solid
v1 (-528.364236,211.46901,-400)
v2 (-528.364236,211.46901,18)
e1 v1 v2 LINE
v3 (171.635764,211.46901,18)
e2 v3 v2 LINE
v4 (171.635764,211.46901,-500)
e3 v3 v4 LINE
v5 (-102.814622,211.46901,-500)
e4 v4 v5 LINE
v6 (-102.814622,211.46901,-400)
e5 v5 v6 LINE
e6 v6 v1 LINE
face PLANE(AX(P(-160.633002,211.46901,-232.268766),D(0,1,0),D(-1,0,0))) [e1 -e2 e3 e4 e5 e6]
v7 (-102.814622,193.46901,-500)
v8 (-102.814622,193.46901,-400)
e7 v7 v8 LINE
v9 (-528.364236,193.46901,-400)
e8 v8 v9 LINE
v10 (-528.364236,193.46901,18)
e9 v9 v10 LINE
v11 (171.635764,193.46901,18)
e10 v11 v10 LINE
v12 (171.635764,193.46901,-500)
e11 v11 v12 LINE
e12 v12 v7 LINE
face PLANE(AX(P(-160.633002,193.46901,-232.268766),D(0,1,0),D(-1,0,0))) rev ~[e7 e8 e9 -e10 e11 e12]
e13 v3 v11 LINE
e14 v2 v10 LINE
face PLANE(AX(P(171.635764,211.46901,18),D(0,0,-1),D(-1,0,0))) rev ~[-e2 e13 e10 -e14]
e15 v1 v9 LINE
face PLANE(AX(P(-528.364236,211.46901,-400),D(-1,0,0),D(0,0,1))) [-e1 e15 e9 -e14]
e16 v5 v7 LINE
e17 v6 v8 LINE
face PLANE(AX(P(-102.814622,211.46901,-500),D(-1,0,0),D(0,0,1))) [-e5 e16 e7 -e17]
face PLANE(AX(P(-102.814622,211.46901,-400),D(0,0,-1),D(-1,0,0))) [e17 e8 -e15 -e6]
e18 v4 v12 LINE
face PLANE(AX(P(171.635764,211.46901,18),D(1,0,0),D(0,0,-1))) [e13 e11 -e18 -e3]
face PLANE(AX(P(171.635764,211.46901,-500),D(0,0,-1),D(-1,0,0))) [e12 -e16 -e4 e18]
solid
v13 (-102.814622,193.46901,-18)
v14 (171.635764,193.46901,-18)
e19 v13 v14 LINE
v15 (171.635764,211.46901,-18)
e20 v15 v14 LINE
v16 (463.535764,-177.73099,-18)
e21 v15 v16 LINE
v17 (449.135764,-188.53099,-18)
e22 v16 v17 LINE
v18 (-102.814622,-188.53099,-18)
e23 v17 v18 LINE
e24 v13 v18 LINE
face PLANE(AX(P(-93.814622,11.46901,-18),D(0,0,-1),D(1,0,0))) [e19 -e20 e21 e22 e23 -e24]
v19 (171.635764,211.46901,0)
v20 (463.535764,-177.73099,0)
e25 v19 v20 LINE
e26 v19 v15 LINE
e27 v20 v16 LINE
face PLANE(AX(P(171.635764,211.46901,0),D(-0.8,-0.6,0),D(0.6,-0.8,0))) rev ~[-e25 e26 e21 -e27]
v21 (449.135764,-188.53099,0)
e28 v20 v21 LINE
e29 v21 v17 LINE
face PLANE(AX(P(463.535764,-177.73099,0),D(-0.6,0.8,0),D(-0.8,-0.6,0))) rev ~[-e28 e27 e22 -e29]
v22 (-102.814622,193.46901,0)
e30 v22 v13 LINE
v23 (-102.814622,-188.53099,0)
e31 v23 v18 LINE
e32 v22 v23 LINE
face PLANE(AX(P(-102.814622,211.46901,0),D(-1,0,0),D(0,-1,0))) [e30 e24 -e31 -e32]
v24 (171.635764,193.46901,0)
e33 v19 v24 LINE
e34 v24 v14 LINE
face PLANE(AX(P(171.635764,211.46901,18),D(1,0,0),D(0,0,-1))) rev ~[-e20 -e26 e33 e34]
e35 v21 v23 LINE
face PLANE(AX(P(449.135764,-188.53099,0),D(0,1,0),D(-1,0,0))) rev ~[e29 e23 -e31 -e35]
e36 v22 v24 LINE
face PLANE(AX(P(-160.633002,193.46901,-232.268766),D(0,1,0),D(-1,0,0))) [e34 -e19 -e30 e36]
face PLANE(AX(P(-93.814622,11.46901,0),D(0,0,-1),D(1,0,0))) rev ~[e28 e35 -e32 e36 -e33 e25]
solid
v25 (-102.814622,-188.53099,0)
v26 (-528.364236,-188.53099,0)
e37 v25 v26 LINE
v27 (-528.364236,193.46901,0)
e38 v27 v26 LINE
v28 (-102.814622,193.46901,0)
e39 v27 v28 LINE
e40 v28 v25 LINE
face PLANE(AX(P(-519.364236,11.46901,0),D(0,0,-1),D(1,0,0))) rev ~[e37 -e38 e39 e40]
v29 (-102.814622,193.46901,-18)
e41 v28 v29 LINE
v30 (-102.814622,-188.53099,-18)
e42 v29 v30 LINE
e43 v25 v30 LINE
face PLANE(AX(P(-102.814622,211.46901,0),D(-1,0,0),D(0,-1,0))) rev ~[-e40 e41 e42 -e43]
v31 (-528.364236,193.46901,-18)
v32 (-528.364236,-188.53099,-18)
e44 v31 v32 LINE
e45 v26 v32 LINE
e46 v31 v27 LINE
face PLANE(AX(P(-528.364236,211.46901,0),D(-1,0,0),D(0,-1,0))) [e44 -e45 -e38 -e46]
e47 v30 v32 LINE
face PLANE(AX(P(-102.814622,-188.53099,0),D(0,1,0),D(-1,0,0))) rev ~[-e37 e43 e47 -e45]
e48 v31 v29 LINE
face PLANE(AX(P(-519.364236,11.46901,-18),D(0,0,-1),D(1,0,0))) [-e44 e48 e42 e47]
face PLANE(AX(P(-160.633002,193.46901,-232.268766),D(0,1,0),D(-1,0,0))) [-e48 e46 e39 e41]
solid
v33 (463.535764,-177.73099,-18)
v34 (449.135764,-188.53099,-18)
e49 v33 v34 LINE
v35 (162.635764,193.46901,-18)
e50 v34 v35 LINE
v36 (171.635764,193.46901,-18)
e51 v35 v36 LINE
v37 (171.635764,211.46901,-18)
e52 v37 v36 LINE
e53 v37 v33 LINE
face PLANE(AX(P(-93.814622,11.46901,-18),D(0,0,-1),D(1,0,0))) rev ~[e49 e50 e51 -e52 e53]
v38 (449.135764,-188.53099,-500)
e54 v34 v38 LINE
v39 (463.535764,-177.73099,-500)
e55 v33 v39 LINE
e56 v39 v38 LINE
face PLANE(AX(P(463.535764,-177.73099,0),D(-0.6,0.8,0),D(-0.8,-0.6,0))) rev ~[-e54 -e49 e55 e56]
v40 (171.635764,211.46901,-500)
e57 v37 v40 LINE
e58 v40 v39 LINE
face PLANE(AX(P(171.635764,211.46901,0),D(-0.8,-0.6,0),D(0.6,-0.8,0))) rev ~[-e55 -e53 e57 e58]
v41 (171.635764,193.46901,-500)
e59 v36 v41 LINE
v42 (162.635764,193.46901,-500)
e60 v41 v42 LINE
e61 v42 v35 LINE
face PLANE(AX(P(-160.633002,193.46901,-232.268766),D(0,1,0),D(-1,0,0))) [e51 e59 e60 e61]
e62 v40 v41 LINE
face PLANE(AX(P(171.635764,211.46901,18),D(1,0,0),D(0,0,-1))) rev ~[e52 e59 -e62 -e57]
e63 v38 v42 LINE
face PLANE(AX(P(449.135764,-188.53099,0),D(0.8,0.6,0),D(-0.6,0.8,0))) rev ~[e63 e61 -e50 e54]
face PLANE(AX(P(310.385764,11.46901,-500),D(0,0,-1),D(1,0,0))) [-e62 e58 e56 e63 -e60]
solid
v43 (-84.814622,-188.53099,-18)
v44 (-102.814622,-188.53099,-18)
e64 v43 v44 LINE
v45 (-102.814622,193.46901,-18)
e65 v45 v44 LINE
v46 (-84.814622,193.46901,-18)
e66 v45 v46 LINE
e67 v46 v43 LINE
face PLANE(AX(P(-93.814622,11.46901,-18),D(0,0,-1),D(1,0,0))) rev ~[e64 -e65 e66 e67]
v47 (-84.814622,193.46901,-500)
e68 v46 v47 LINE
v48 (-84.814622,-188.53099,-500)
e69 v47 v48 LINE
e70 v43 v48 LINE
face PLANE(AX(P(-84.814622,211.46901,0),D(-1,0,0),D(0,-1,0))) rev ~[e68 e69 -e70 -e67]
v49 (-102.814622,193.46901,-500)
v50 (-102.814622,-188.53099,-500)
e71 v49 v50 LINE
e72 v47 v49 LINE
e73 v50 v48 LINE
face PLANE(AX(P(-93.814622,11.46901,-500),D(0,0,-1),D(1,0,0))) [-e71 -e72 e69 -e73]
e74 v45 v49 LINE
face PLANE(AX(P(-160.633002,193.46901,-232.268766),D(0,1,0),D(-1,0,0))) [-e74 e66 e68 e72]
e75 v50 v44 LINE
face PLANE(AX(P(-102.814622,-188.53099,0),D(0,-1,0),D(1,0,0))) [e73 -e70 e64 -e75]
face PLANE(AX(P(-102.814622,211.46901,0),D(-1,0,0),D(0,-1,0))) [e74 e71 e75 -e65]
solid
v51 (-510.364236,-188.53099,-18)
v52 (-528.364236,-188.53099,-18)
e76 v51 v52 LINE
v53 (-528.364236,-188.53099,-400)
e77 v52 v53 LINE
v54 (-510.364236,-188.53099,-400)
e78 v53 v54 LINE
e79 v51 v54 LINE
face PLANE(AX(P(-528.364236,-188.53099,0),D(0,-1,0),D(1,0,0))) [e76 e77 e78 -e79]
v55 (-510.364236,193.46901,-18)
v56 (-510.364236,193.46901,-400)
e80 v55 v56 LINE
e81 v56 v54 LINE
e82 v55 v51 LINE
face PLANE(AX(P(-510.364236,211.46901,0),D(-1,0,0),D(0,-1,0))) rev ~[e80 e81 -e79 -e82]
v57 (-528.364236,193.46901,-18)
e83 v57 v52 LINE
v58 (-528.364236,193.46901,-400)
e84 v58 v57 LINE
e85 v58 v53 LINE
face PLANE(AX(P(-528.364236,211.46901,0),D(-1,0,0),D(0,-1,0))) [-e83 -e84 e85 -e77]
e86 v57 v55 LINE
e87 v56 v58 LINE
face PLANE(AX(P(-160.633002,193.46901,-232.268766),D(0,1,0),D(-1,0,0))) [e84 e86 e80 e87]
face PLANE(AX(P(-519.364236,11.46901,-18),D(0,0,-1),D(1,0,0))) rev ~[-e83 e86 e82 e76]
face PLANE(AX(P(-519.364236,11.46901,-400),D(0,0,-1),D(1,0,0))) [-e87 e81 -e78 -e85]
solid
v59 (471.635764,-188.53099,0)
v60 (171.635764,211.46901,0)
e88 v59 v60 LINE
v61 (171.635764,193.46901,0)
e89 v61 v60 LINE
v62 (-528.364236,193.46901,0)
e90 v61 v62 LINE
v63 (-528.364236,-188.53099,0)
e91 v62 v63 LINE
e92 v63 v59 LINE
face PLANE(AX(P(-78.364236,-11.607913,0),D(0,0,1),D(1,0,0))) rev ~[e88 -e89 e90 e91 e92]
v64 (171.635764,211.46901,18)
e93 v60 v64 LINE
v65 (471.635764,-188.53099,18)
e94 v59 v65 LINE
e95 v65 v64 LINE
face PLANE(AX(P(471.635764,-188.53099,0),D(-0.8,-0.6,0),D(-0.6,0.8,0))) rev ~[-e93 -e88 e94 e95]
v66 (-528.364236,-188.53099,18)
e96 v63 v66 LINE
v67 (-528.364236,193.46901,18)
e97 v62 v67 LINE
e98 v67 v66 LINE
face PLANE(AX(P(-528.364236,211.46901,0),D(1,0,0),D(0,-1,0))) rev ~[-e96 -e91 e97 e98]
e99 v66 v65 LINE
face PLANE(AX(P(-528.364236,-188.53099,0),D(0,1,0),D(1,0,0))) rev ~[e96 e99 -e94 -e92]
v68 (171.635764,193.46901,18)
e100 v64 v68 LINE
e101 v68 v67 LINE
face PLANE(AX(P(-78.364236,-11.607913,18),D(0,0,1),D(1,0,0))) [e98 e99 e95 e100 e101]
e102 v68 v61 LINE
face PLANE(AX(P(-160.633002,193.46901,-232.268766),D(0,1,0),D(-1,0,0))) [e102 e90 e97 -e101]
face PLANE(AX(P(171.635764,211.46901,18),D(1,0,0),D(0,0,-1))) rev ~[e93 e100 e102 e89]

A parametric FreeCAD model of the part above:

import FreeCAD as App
import Part
import Sketcher
from FreeCAD import Vector
Q = App.Units.Quantity

doc = App.newDocument("Part")
body = doc.addObject("PartDesign::Body", "Body")

sketch1 = body.newObject("Sketcher::SketchObject", "Sketch")
sketch1.AttachmentSupport = (doc.getObject("XY_Plane"), [""])
sketch1.MapMode = "FlatFace"
sketch1.addGeometry([
    Part.LineSegment(Vector(-528.364236, 211.46901, 0), Vector(-528.364236, -188.53099, 0)),
    Part.LineSegment(Vector(-528.364236, -188.53099, 0), Vector(471.635764, -188.53099, 0)),
    Part.LineSegment(Vector(471.635764, -188.53099, 0), Vector(171.635764, 211.46901, 0)),
    Part.LineSegment(Vector(171.635764, 211.46901, 0), Vector(-528.364236, 211.46901, 0)),
], False)
sketch1.addConstraint([
    Sketcher.Constraint("Coincident", 0, 2, 1, 1),
    Sketcher.Constraint("Coincident", 1, 2, 2, 1),
    Sketcher.Constraint("Coincident", 2, 2, 3, 1),
    Sketcher.Constraint("Coincident", 3, 2, 0, 1),
    Sketcher.Constraint("Vertical", 0),
    Sketcher.Constraint("Horizontal", 1),
    Sketcher.Constraint("Horizontal", 3),
    Sketcher.Constraint("DistanceX", 1, 1, 1, 2, Q("1000 mm")),
    Sketcher.Constraint("DistanceX", 3, 2, 3, 1, Q("700 mm")),
    Sketcher.Constraint("DistanceY", 0, 2, 0, 1, Q("400 mm")),
    Sketcher.Constraint("DistanceY", 0, 2, -1, 1, Q("188.53099 mm")),
    Sketcher.Constraint("DistanceX", 0, 2, -1, 1, Q("528.364236 mm")),
])
pad1 = body.newObject("PartDesign::Pad", "Pad")
pad1.Profile = sketch1
pad1.Length = 18
body2 = doc.addObject("PartDesign::Body", "Body001")
body2.AllowCompound = True

sketch2 = body2.newObject("Sketcher::SketchObject", "Sketch001")
sketch2.AttachmentSupport = (doc.getObject("XY_Plane001"), [""])
sketch2.MapMode = "FlatFace"
sketch2.addGeometry([
    Part.LineSegment(Vector(-102.814622, -188.53099, 0), Vector(-102.814622, 211.46901, 0)),
    Part.LineSegment(Vector(-102.814622, 211.46901, 0), Vector(-84.814622, 211.46901, 0)),
    Part.LineSegment(Vector(-84.814622, 211.46901, 0), Vector(-84.814622, -188.53099, 0)),
    Part.LineSegment(Vector(-84.814622, -188.53099, 0), Vector(-102.814622, -188.53099, 0)),
    Part.LineSegment(Vector(463.535764, -177.73099, 0), Vector(449.135764, -188.53099, 0)),
    Part.LineSegment(Vector(449.135764, -188.53099, 0), Vector(157.235764, 200.66901, 0)),
    Part.LineSegment(Vector(157.235764, 200.66901, 0), Vector(171.635764, 211.46901, 0)),
    Part.LineSegment(Vector(171.635764, 211.46901, 0), Vector(463.535764, -177.73099, 0)),
], False)
sketch2.addConstraint([
    Sketcher.Constraint("Coincident", 0, 2, 1, 1),
    Sketcher.Constraint("Coincident", 1, 2, 2, 1),
    Sketcher.Constraint("Coincident", 2, 2, 3, 1),
    Sketcher.Constraint("Coincident", 3, 2, 0, 1),
    Sketcher.Constraint("Coincident", 4, 2, 5, 1),
    Sketcher.Constraint("Coincident", 5, 2, 6, 1),
    Sketcher.Constraint("Coincident", 6, 2, 7, 1),
    Sketcher.Constraint("Coincident", 7, 2, 4, 1),
    Sketcher.Constraint("Vertical", 0),
    Sketcher.Constraint("Horizontal", 1),
    Sketcher.Constraint("Vertical", 2),
    Sketcher.Constraint("Horizontal", 3),
    Sketcher.Constraint("Perpendicular", 4, 5),
    Sketcher.Constraint("Perpendicular", 5, 6),
    Sketcher.Constraint("Perpendicular", 6, 7),
    Sketcher.Constraint("Horizontal", 3, 2, 4, 2),
    Sketcher.Constraint("Horizontal", 1, 2, 6, 2),
    Sketcher.Constraint("DistanceX", 1, 1, 1, 2, Q("18 mm")),
    Sketcher.Constraint("DistanceY", 0, 1, 0, 2, Q("400 mm")),
    Sketcher.Constraint("Distance", 4, Q("18 mm")),
    Sketcher.Constraint("Distance", 5, Q("486.5 mm")),
    Sketcher.Constraint("DistanceX", 0, 2, -1, 1, Q("102.814622 mm")),
    Sketcher.Constraint("DistanceY", -1, 1, 0, 2, Q("211.46901 mm")),
    Sketcher.Constraint("DistanceX", -1, 1, 4, 2, Q("449.135764 mm")),
])
pad2 = body2.newObject("PartDesign::Pad", "Pad001")
pad2.Profile = sketch2
pad2.Length = 500
pad2.Reversed = True
body3 = doc.addObject("PartDesign::Body", "Body002")

sketch3 = body3.newObject("Sketcher::SketchObject", "Sketch002")
sketch3.AttachmentSupport = (doc.getObject("XY_Plane002"), [""])
sketch3.MapMode = "FlatFace"
sketch3.addGeometry([
    Part.LineSegment(Vector(-528.364236, -188.53099, 0), Vector(-528.364236, 211.46901, 0)),
    Part.LineSegment(Vector(-528.364236, 211.46901, 0), Vector(-510.364236, 211.46901, 0)),
    Part.LineSegment(Vector(-510.364236, 211.46901, 0), Vector(-510.364236, -188.53099, 0)),
    Part.LineSegment(Vector(-510.364236, -188.53099, 0), Vector(-528.364236, -188.53099, 0)),
], False)
sketch3.addConstraint([
    Sketcher.Constraint("Coincident", 0, 2, 1, 1),
    Sketcher.Constraint("Coincident", 1, 2, 2, 1),
    Sketcher.Constraint("Coincident", 2, 2, 3, 1),
    Sketcher.Constraint("Coincident", 3, 2, 0, 1),
    Sketcher.Constraint("Vertical", 0),
    Sketcher.Constraint("Horizontal", 1),
    Sketcher.Constraint("Vertical", 2),
    Sketcher.Constraint("Horizontal", 3),
    Sketcher.Constraint("DistanceX", 1, 1, 1, 2, Q("18 mm")),
    Sketcher.Constraint("DistanceY", 0, 1, 0, 2, Q("400 mm")),
    Sketcher.Constraint("DistanceY", -1, 1, 0, 2, Q("211.46901 mm")),
    Sketcher.Constraint("DistanceX", 0, 2, -1, 1, Q("528.364236 mm")),
])
pad3 = body3.newObject("PartDesign::Pad", "Pad002")
pad3.Profile = sketch3
pad3.Length = 400
pad3.Reversed = True
body4 = doc.addObject("PartDesign::Body", "Body003")

sketch4 = body4.newObject("Sketcher::SketchObject", "Sketch003")
sketch4.AttachmentSupport = (doc.getObject("XY_Plane003"), [""])
sketch4.MapMode = "FlatFace"
sketch4.addGeometry([
    Part.LineSegment(Vector(-528.364236, -188.53099, 0), Vector(-528.364236, 211.46901, 0)),
    Part.LineSegment(Vector(-528.364236, 211.46901, 0), Vector(-102.814622, 211.46901, 0)),
    Part.LineSegment(Vector(-102.814622, 211.46901, 0), Vector(-102.814622, -188.53099, 0)),
    Part.LineSegment(Vector(-102.814622, -188.53099, 0), Vector(-528.364236, -188.53099, 0)),
], False)
sketch4.addConstraint([
    Sketcher.Constraint("Coincident", 0, 2, 1, 1),
    Sketcher.Constraint("Coincident", 1, 2, 2, 1),
    Sketcher.Constraint("Coincident", 2, 2, 3, 1),
    Sketcher.Constraint("Coincident", 3, 2, 0, 1),
    Sketcher.Constraint("Vertical", 0),
    Sketcher.Constraint("Horizontal", 1),
    Sketcher.Constraint("Vertical", 2),
    Sketcher.Constraint("Horizontal", 3),
    Sketcher.Constraint("DistanceY", 0, 1, 0, 2, Q("400 mm")),
    Sketcher.Constraint("DistanceX", 1, 1, 1, 2, Q("425.549614 mm")),
    Sketcher.Constraint("DistanceY", -1, 1, 0, 2, Q("211.46901 mm")),
    Sketcher.Constraint("DistanceX", 1, 2, -1, 1, Q("102.814622 mm")),
])
pad4 = body4.newObject("PartDesign::Pad", "Pad003")
pad4.Profile = sketch4
pad4.Length = 18
pad4.Reversed = True
body5 = doc.addObject("PartDesign::Body", "Body004")

sketch5 = body5.newObject("Sketcher::SketchObject", "Sketch004")
sketch5.AttachmentSupport = (doc.getObject("XY_Plane004"), [""])
sketch5.MapMode = "FlatFace"
sketch5.addGeometry([
    Part.LineSegment(Vector(-102.814622, -188.53099, 0), Vector(-102.814622, 211.46901, 0)),
    Part.LineSegment(Vector(-102.814622, 211.46901, 0), Vector(171.635764, 211.46901, 0)),
    Part.LineSegment(Vector(171.635764, 211.46901, 0), Vector(463.535764, -177.73099, 0)),
    Part.LineSegment(Vector(463.535764, -177.73099, 0), Vector(449.135764, -188.53099, 0)),
    Part.LineSegment(Vector(449.135764, -188.53099, 0), Vector(-102.814622, -188.53099, 0)),
], False)
sketch5.addConstraint([
    Sketcher.Constraint("Coincident", 0, 2, 1, 1),
    Sketcher.Constraint("Coincident", 1, 2, 2, 1),
    Sketcher.Constraint("Coincident", 2, 2, 3, 1),
    Sketcher.Constraint("Coincident", 3, 2, 4, 1),
    Sketcher.Constraint("Coincident", 4, 2, 0, 1),
    Sketcher.Constraint("Vertical", 0),
    Sketcher.Constraint("Horizontal", 1),
    Sketcher.Constraint("Horizontal", 4),
    Sketcher.Constraint("Perpendicular", 2, 3),
    Sketcher.Constraint("DistanceY", 0, 1, 0, 2, Q("400 mm")),
    Sketcher.Constraint("Distance", 3, Q("18 mm")),
    Sketcher.Constraint("Distance", 2, Q("486.5 mm")),
    Sketcher.Constraint("DistanceX", 1, 1, 1, 2, Q("274.450386 mm")),
    Sketcher.Constraint("DistanceX", 0, 2, -1, 1, Q("102.814622 mm")),
    Sketcher.Constraint("DistanceY", -1, 1, 0, 2, Q("211.46901 mm")),
])
pad5 = body5.newObject("PartDesign::Pad", "Pad004")
pad5.Profile = sketch5
pad5.Length = 18
pad5.Reversed = True
body6 = doc.addObject("PartDesign::Body", "Body005")

sketch6 = body6.newObject("Sketcher::SketchObject", "Sketch005")
sketch6.AttachmentSupport = (doc.getObject("XZ_Plane005"), [""])
sketch6.MapMode = "FlatFace"
sketch6.AttachmentOffset = App.Placement(Vector(0, 0, -211.46901), App.Rotation())
sketch6.addGeometry([
    Part.LineSegment(Vector(-528.364236, -400, 0), Vector(-528.364236, 18, 0)),
    Part.LineSegment(Vector(-528.364236, 18, 0), Vector(171.635764, 18, 0)),
    Part.LineSegment(Vector(171.635764, 18, 0), Vector(171.635764, -500, 0)),
    Part.LineSegment(Vector(171.635764, -500, 0), Vector(-102.814622, -500, 0)),
    Part.LineSegment(Vector(-102.814622, -500, 0), Vector(-102.814622, -400, 0)),
    Part.LineSegment(Vector(-102.814622, -400, 0), Vector(-528.364236, -400, 0)),
], False)
sketch6.addConstraint([
    Sketcher.Constraint("Coincident", 0, 2, 1, 1),
    Sketcher.Constraint("Coincident", 1, 2, 2, 1),
    Sketcher.Constraint("Coincident", 2, 2, 3, 1),
    Sketcher.Constraint("Coincident", 3, 2, 4, 1),
    Sketcher.Constraint("Coincident", 4, 2, 5, 1),
    Sketcher.Constraint("Coincident", 5, 2, 0, 1),
    Sketcher.Constraint("Vertical", 0),
    Sketcher.Constraint("Horizontal", 1),
    Sketcher.Constraint("Vertical", 2),
    Sketcher.Constraint("Horizontal", 3),
    Sketcher.Constraint("Vertical", 4),
    Sketcher.Constraint("Horizontal", 5),
    Sketcher.Constraint("DistanceX", 1, 1, 1, 2, Q("700 mm")),
    Sketcher.Constraint("DistanceY", 0, 1, 0, 2, Q("418 mm")),
    Sketcher.Constraint("DistanceY", 2, 2, 2, 1, Q("518 mm")),
    Sketcher.Constraint("DistanceY", -1, 1, 0, 2, Q("18 mm")),
    Sketcher.Constraint("DistanceX", 3, 2, 3, 1, Q("274.450386 mm")),
    Sketcher.Constraint("DistanceX", 3, 2, -1, 1, Q("102.814622 mm")),
])
pad6 = body6.newObject("PartDesign::Pad", "Pad005")
pad6.Profile = sketch6
pad6.Length = 18
doc.recompute()

body7 = doc.addObject("PartDesign::Body", "Body006")
body7.BaseFeature = body6
boolean = body.newObject("PartDesign::Boolean", "Boolean")
boolean.Type = "Cut"
boolean.addObjects([body7])
doc.recompute()
body2.AllowCompound = True
doc.recompute()

body8 = doc.addObject("PartDesign::Body", "Body007")
body8.BaseFeature = body6
boolean2 = body2.newObject("PartDesign::Boolean", "Boolean001")
boolean2.Type = "Cut"
boolean2.addObjects([body8])
doc.recompute()

body9 = doc.addObject("PartDesign::Body", "Body008")
body9.BaseFeature = body6
boolean3 = body3.newObject("PartDesign::Boolean", "Boolean002")
boolean3.Type = "Cut"
boolean3.addObjects([body9])
doc.recompute()

body10 = doc.addObject("PartDesign::Body", "Body009")
body10.BaseFeature = body6
boolean4 = body4.newObject("PartDesign::Boolean", "Boolean003")
boolean4.Type = "Cut"
boolean4.addObjects([body10])
doc.recompute()

body11 = doc.addObject("PartDesign::Body", "Body010")
body11.BaseFeature = body6
boolean5 = body5.newObject("PartDesign::Boolean", "Boolean004")
boolean5.Type = "Cut"
boolean5.addObjects([body11])
doc.recompute()
body2.AllowCompound = True
doc.recompute()

body12 = doc.addObject("PartDesign::Body", "Body011")
body12.BaseFeature = body4
boolean6 = body2.newObject("PartDesign::Boolean", "Boolean005")
boolean6.Type = "Cut"
boolean6.addObjects([body12])
doc.recompute()

body13 = doc.addObject("PartDesign::Body", "Body012")
body13.BaseFeature = body5
boolean7 = body2.newObject("PartDesign::Boolean", "Boolean006")
boolean7.Type = "Cut"
boolean7.addObjects([body13])
doc.recompute()

body14 = doc.addObject("PartDesign::Body", "Body013")
body14.BaseFeature = body4
boolean8 = body3.newObject("PartDesign::Boolean", "Boolean007")
boolean8.Type = "Cut"
boolean8.addObjects([body14])
doc.recompute()

body15 = doc.addObject("PartDesign::Body", "Body014")
body15.BaseFeature = body5
boolean9 = body3.newObject("PartDesign::Boolean", "Boolean008")
boolean9.Type = "Cut"
boolean9.addObjects([body15])
doc.recompute()

doc.recompute()
